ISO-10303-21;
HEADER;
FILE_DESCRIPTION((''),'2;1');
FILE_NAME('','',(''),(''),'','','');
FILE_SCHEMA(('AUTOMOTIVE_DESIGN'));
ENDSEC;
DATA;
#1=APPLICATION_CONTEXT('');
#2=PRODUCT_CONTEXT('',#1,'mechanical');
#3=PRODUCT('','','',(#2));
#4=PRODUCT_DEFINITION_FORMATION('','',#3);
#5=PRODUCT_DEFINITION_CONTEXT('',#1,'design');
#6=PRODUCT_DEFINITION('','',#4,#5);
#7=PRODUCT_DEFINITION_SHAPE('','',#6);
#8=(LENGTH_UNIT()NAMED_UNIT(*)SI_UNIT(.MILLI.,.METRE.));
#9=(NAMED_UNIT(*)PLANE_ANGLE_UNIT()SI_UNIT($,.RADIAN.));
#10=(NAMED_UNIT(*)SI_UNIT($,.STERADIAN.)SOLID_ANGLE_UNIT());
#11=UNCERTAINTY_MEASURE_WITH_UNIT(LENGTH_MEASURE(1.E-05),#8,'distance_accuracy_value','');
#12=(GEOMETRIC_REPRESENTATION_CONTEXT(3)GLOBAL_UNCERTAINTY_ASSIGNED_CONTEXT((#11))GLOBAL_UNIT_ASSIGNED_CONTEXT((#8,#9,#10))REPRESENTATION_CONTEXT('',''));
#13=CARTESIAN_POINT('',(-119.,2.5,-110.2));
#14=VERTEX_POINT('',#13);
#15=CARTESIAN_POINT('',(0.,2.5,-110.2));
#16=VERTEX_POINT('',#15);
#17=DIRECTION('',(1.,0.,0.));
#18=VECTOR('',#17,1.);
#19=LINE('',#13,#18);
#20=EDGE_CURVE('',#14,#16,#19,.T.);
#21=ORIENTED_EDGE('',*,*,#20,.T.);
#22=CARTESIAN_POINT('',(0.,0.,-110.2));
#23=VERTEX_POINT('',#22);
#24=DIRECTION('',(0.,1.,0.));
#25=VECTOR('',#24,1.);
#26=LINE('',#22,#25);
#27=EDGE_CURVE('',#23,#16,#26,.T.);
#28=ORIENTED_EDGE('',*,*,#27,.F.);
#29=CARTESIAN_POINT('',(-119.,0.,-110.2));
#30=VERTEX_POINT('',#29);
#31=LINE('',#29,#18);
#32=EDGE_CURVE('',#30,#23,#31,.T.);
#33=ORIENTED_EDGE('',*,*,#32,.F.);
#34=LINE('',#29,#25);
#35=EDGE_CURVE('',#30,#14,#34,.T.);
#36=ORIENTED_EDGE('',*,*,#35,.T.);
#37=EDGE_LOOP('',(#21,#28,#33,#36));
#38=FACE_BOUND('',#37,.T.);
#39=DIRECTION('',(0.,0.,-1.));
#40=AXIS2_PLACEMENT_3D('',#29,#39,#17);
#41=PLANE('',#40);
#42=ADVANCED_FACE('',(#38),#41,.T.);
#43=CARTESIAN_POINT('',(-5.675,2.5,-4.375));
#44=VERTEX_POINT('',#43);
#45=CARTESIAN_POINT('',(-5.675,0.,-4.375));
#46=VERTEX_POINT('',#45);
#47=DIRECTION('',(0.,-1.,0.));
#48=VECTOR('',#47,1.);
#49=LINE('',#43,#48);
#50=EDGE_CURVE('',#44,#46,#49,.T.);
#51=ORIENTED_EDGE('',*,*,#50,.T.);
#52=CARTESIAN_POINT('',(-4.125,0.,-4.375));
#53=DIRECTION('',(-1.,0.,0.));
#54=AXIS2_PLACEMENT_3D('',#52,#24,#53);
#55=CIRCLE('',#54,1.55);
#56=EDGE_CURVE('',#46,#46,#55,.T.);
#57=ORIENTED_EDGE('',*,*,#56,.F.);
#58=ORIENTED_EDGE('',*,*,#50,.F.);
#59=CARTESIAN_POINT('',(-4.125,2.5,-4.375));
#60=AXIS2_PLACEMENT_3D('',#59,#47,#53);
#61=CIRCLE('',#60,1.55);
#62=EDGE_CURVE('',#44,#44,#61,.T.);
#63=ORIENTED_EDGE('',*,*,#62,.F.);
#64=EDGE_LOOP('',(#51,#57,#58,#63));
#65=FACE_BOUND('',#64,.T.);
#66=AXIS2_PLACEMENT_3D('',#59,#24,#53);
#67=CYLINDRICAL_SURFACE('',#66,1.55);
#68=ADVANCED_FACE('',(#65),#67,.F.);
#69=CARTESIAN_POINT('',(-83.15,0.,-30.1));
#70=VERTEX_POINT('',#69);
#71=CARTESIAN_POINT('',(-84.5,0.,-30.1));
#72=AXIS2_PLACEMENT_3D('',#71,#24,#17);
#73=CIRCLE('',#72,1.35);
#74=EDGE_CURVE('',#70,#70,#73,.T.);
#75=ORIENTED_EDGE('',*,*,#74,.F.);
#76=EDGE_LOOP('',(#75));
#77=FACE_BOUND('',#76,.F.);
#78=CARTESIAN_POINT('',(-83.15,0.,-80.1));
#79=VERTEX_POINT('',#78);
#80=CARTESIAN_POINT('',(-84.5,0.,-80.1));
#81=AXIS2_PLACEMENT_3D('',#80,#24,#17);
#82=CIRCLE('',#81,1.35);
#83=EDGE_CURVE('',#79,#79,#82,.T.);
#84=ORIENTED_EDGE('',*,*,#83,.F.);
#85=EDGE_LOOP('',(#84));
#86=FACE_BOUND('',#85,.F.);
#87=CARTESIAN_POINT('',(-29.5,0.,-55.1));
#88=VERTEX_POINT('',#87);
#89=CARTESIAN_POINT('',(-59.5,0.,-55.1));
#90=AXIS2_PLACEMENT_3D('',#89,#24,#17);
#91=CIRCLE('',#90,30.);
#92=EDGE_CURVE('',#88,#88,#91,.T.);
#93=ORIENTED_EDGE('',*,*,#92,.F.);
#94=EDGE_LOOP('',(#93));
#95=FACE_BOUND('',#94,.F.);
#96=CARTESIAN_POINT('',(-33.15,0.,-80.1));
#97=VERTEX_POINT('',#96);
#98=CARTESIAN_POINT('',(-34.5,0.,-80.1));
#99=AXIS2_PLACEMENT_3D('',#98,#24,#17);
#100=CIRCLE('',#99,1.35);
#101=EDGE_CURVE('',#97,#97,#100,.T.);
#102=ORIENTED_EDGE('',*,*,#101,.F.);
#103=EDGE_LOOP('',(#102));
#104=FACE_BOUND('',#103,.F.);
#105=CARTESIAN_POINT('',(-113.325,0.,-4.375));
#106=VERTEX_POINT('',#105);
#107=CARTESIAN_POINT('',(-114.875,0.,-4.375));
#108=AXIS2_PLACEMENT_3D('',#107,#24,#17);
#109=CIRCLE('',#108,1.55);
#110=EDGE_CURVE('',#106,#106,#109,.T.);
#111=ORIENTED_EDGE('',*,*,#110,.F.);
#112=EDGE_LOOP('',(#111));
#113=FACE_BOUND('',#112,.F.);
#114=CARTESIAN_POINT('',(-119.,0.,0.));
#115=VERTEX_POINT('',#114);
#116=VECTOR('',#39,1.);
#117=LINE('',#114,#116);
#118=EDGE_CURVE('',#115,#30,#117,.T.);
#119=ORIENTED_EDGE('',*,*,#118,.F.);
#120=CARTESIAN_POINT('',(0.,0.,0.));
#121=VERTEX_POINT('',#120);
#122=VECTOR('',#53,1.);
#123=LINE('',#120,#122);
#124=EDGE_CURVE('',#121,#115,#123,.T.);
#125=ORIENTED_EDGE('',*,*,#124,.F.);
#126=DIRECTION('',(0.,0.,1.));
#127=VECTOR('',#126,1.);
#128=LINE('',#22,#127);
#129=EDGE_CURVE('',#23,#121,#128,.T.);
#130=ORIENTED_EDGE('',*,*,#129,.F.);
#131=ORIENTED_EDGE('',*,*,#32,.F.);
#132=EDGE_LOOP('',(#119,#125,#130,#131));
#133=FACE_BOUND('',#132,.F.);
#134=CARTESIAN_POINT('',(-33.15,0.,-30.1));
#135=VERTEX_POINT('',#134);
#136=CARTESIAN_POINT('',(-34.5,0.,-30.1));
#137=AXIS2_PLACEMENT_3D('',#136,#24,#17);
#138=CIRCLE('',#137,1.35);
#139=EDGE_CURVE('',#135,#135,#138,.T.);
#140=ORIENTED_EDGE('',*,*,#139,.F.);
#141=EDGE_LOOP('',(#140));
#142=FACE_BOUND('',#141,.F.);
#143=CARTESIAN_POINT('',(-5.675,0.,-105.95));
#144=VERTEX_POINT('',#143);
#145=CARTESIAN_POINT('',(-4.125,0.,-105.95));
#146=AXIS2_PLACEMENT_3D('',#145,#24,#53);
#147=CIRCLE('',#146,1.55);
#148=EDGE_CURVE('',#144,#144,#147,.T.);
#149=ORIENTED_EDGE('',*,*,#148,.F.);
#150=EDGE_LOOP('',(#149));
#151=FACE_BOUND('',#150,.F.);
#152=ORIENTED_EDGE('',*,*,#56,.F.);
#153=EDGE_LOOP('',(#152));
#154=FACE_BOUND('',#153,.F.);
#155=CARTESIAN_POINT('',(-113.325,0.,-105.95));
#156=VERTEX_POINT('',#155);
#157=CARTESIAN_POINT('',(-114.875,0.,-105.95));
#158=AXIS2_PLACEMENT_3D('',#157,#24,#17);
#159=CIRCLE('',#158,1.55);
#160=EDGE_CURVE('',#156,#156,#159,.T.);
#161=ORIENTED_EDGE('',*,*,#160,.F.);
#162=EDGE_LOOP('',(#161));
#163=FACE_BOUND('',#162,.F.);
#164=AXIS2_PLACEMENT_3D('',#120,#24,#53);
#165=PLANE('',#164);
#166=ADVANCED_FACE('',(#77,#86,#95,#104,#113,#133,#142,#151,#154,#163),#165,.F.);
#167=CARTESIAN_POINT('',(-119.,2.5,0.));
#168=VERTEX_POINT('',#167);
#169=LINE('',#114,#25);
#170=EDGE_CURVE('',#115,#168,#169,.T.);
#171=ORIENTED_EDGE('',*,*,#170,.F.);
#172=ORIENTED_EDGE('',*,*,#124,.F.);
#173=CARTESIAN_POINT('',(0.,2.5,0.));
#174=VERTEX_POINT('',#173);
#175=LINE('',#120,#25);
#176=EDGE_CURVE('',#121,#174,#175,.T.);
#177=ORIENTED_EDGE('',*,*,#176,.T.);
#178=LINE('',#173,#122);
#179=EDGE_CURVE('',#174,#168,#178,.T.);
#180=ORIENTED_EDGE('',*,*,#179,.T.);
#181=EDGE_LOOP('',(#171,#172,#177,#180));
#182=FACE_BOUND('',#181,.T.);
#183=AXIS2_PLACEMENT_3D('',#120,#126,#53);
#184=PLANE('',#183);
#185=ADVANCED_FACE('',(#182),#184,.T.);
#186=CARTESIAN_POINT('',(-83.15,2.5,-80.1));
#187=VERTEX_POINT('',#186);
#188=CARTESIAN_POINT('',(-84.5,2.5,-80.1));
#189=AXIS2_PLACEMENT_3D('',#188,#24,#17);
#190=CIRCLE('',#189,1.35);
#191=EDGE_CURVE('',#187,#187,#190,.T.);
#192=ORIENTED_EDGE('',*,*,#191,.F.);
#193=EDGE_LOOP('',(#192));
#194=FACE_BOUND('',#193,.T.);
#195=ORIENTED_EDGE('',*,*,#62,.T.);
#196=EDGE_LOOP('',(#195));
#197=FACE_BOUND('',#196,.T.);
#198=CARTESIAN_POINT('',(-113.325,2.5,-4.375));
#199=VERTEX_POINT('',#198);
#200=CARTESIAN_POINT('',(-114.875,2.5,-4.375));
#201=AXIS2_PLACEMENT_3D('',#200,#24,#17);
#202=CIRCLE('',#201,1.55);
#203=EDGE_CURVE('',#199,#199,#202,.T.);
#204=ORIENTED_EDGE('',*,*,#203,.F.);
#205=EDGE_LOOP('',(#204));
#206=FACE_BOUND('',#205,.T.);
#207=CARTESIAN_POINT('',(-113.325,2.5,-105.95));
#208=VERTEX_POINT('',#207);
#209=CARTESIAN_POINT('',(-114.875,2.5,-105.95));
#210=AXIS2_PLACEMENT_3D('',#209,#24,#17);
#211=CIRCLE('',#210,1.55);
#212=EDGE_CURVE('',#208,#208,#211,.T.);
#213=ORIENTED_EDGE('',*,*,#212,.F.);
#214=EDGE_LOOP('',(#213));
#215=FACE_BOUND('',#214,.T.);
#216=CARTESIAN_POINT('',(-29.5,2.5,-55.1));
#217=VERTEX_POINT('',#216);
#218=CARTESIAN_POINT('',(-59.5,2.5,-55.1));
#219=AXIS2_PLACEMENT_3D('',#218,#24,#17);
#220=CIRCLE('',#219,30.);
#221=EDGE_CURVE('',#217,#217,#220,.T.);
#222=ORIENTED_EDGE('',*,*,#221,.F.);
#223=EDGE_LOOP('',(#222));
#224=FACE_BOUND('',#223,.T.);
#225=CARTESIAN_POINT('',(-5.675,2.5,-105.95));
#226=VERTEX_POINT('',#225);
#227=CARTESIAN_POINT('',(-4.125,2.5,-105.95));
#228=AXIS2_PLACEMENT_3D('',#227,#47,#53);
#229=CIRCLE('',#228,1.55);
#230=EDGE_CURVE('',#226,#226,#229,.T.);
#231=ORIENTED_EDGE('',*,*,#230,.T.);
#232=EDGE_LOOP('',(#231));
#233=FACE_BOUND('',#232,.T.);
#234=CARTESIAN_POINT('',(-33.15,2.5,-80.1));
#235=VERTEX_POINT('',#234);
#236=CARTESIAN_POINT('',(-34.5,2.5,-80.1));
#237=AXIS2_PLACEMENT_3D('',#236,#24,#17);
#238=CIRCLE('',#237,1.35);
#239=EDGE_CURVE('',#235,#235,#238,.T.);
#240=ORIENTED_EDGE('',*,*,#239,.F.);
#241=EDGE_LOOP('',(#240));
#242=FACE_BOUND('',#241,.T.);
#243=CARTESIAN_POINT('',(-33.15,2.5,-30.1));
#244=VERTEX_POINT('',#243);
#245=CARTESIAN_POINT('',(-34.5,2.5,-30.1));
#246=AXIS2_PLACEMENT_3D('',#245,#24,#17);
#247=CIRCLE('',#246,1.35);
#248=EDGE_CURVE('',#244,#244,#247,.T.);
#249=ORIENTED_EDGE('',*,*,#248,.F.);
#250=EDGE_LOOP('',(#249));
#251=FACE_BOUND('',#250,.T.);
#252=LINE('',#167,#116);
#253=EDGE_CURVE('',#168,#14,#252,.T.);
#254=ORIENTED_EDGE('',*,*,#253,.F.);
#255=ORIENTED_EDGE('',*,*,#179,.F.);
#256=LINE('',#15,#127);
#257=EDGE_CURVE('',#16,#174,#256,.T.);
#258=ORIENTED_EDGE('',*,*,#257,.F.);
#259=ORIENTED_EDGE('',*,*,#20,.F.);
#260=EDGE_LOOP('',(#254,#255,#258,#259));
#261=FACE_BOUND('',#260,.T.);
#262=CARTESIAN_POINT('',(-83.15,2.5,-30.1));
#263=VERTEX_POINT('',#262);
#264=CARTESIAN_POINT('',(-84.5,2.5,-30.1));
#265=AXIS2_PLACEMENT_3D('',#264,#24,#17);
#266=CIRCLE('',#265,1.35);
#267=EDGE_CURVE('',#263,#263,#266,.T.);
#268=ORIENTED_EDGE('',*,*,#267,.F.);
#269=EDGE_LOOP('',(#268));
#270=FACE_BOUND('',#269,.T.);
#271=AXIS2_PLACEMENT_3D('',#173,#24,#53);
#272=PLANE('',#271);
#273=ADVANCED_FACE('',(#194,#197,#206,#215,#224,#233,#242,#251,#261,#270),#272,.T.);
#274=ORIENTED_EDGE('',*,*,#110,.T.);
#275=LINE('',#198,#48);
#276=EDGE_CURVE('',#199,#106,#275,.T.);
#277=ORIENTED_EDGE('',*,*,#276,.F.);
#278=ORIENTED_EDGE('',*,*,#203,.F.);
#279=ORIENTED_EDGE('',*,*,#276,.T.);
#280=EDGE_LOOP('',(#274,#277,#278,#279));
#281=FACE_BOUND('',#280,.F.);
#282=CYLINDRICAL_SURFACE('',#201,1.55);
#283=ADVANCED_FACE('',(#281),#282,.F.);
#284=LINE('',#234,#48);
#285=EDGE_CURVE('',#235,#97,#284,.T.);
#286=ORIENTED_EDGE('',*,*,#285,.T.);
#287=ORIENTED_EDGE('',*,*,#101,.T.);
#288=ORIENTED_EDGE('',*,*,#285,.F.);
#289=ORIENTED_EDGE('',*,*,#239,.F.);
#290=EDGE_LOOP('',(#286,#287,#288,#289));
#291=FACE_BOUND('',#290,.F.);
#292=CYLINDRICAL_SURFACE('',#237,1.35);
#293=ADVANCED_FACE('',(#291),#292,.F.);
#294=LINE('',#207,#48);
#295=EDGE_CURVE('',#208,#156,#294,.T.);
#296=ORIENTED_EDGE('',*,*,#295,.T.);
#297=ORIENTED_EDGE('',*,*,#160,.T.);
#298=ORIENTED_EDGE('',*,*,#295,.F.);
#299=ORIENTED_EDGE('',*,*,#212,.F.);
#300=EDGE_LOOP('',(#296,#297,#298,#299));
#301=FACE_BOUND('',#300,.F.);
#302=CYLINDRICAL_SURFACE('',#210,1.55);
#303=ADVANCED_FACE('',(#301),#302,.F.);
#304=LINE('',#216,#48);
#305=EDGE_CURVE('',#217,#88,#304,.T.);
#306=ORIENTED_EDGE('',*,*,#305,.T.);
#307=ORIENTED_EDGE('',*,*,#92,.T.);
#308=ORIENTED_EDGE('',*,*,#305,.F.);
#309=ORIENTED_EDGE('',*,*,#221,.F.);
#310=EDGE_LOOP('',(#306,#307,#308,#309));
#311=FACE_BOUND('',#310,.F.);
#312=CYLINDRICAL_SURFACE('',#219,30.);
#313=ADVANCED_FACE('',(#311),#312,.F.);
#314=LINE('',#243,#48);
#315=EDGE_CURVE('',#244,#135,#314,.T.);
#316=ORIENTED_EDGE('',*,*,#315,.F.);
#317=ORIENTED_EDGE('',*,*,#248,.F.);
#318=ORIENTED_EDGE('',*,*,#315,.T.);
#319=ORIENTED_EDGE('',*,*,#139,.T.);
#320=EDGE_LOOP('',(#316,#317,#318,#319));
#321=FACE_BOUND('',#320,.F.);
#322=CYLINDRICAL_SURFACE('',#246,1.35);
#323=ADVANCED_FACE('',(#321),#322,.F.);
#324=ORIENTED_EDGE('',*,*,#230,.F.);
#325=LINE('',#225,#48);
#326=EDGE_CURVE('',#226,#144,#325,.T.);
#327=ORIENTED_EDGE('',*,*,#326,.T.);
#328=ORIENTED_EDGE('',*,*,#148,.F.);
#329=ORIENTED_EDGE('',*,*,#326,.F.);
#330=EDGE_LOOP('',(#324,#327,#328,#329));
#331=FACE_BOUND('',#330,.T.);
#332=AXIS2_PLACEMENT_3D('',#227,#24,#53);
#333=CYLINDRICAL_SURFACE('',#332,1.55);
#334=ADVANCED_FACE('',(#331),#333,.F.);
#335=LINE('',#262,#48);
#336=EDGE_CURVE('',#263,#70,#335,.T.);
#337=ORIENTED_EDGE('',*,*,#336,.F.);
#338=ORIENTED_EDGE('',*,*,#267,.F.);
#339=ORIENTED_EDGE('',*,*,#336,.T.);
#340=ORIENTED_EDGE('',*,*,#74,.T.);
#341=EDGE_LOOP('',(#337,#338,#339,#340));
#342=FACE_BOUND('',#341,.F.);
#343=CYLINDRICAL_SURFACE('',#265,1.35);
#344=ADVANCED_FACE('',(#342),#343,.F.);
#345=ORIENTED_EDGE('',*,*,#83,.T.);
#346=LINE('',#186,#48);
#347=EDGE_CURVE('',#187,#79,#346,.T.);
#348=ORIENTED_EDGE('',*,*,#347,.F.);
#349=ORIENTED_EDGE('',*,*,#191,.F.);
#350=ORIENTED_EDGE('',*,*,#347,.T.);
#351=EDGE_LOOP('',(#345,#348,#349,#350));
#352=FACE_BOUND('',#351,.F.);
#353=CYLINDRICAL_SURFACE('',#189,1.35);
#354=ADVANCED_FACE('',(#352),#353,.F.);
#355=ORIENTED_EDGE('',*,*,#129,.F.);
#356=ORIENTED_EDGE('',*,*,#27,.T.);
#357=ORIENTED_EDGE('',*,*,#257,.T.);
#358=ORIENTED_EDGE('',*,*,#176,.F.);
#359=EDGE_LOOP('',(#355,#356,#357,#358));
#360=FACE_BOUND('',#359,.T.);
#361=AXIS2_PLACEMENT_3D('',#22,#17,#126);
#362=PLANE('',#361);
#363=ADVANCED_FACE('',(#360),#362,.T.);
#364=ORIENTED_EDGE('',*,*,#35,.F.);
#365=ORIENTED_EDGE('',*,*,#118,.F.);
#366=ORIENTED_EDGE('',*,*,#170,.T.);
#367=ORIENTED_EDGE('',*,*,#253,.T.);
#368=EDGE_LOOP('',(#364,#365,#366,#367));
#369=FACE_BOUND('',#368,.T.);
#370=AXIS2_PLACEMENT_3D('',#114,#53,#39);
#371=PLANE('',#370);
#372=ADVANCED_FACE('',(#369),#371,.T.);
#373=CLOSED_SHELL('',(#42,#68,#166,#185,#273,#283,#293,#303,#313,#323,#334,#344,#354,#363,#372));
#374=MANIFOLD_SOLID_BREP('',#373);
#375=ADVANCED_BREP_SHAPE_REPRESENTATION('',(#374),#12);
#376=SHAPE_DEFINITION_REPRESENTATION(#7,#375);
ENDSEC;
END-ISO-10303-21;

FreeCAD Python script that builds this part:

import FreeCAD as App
import Part
import Sketcher
from FreeCAD import Vector


def add_polygon(sketch, points):
    """Adds a closed chain of lines whose ends are joined by coincident constraints."""
    first, n = sketch.GeometryCount, len(points)
    for a, b in zip(points, points[1:] + points[:1]):
        sketch.addGeometry(Part.LineSegment(App.Vector(*a, 0), App.Vector(*b, 0)), False)
    for i in range(n):
        sketch.addConstraint(Sketcher.Constraint("Coincident", first + i, 2, first + (i + 1) % n, 1))

doc = App.newDocument("Part")
body = doc.addObject("PartDesign::Body", "Body")

sketch1 = body.newObject("Sketcher::SketchObject", "Sketch")
sketch1.AttachmentSupport = (doc.getObject("XZ_Plane"), [""])
sketch1.MapMode = "FlatFace"
add_polygon(sketch1, [(-119, 0), (0, 0), (0, -110), (-119, -110)])
sketch1.addConstraint([
    Sketcher.Constraint("Horizontal", 0),
    Sketcher.Constraint("Vertical", 1),
    Sketcher.Constraint("Horizontal", 2),
    Sketcher.Constraint("Vertical", 3),
    Sketcher.Constraint("Coincident", 0, 2, -1, 1),
    Sketcher.Constraint("DistanceX", 0, 1, 0, 2, 119.0),
    Sketcher.Constraint("DistanceY", 1, 2, 1, 1, 110.2),
])
pad1 = body.newObject("PartDesign::Pad", "Pad")
pad1.Profile = sketch1
pad1.Length = 2.5
pad1.Reversed = True

sketch2 = body.newObject("Sketcher::SketchObject", "Sketch001")
sketch2.AttachmentSupport = (doc.getObject("XZ_Plane"), [""])
sketch2.MapMode = "FlatFace"
sketch2.AttachmentOffset = App.Placement(Vector(0, 0, -2.5), App.Rotation())
sketch2.addGeometry([
    Part.Circle(Vector(-114.9, -4.4, 0), Vector(0, 0, 1), 1.6),
    Part.Circle(Vector(-114.9, -106, 0), Vector(0, 0, 1), 1.6),
], False)
sketch2.addConstraint([
    Sketcher.Constraint("Equal", 0, 1),
    Sketcher.Constraint("Vertical", 0, 3, 1, 3),
    Sketcher.Constraint("Diameter", 0, 3.1),
    Sketcher.Constraint("DistanceY", 0, 3, -1, 1, 4.375),
    Sketcher.Constraint("DistanceY", 1, 3, -1, 1, 105.95),
    Sketcher.Constraint("DistanceX", 0, 3, -1, 1, 114.875),
])
pocket1 = body.newObject("PartDesign::Pocket", "Pocket")
pocket1.Profile = sketch2
pocket1.Type = "ThroughAll"
pocket1.Reversed = True
doc.recompute()

datumplane = body.newObject("PartDesign::Plane", "DatumPlane")
datumplane.AttachmentSupport = (doc.getObject("YZ_Plane"), [""])
datumplane.MapMode = "FlatFace"
datumplane.AttachmentOffset = App.Placement(Vector(0, 0, -59.5), App.Rotation())
mirrored = body.newObject("PartDesign::Mirrored", "Mirrored")
mirrored.Originals = [pocket1]
mirrored.MirrorPlane = (datumplane, [""])
body.Tip = mirrored

sketch3 = body.newObject("Sketcher::SketchObject", "Sketch002")
sketch3.AttachmentSupport = (doc.getObject("XZ_Plane"), [""])
sketch3.MapMode = "FlatFace"
sketch3.AttachmentOffset = App.Placement(Vector(0, 0, -2.5), App.Rotation())
sketch3.addGeometry([
    Part.Circle(Vector(-59.5, -55.1, 0), Vector(0, 0, 1), 30),
    Part.Circle(Vector(-34.5, -80.1, 0), Vector(0, 0, 1), 1.4),
    Part.Circle(Vector(-34.5, -30.1, 0), Vector(0, 0, 1), 1.4),
    Part.Circle(Vector(-84.5, -30.1, 0), Vector(0, 0, 1), 1.4),
    Part.Circle(Vector(-84.5, -80.1, 0), Vector(0, 0, 1), 1.4),
], False)
sketch3.addConstraint([
    Sketcher.Constraint("Equal", 1, 2),
    Sketcher.Constraint("Equal", 2, 3),
    Sketcher.Constraint("Equal", 3, 4),
    Sketcher.Constraint("Horizontal", 2, 3, 3, 3),
    Sketcher.Constraint("Horizontal", 1, 3, 4, 3),
    Sketcher.Constraint("Vertical", 1, 3, 2, 3),
    Sketcher.Constraint("Vertical", 3, 3, 4, 3),
    Sketcher.Constraint("Diameter", 0, 60.0),
    Sketcher.Constraint("Diameter", 1, 2.7),
    Sketcher.Constraint("DistanceX", 0, 3, 1, 3, 25.0),
    Sketcher.Constraint("DistanceY", 1, 3, 0, 3, 25.0),
    Sketcher.Constraint("DistanceY", 0, 3, 2, 3, 25.0),
    Sketcher.Constraint("DistanceX", 3, 3, 0, 3, 25.0),
    Sketcher.Constraint("DistanceX", 0, 3, -1, 1, 59.5),
    Sketcher.Constraint("DistanceY", 0, 3, -1, 1, 55.1),
])
pocket2 = body.newObject("PartDesign::Pocket", "Pocket001")
pocket2.Profile = sketch3
pocket2.Type = "ThroughAll"
pocket2.Reversed = True

doc.recompute()
